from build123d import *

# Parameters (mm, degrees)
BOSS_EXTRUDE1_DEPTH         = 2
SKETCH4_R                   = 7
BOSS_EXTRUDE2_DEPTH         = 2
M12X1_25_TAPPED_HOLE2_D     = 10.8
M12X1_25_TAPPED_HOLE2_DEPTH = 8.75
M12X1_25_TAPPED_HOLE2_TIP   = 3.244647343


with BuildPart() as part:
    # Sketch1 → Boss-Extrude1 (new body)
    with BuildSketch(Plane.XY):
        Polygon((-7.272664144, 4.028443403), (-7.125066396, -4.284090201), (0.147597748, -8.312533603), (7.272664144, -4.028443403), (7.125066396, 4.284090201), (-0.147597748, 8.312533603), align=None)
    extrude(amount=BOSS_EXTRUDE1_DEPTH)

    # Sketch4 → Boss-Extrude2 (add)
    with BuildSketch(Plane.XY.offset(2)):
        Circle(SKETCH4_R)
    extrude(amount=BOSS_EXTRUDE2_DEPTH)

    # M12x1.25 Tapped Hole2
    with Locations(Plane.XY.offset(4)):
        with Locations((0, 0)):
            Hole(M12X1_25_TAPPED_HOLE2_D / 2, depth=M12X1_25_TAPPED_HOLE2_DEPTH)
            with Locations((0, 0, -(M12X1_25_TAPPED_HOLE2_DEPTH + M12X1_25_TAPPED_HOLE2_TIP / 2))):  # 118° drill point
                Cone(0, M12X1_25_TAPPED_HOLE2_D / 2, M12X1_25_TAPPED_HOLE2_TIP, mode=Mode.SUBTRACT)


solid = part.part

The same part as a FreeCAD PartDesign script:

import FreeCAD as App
import Part
import Sketcher

V = App.Vector

doc = App.newDocument("Part")
params = doc.addObject("Spreadsheet::Sheet", "Params")
for row, (alias, value) in enumerate([
    ("pad1_length", "2 mm"),
    ("sketch2_diameter", "14 mm"),
    ("pad2_length", "2 mm"),
    ("sketch3_diameter", "10.8 mm"),
    ("hole_diameter", "10.8 mm"),
    ("hole_depth", "8.75 mm"),
], start=1):
    params.set(f"A{row}", alias)
    params.set(f"B{row}", "=" + value)
    params.setAlias(f"B{row}", alias)

body = doc.addObject("PartDesign::Body", "Body")

sketch1 = doc.addObject("Sketcher::SketchObject", "Sketch")
body.addObject(sketch1)
sketch1.AttachmentSupport = (doc.XY_Plane, [""])
sketch1.MapMode = "FlatFace"
sketch1.addGeometry([
    Part.LineSegment(V(-7.272664, 4.028443, 0), V(-7.125066, -4.28409, 0)),
    Part.LineSegment(V(-7.125066, -4.28409, 0), V(0.147598, -8.312534, 0)),
    Part.LineSegment(V(0.147598, -8.312534, 0), V(7.272664, -4.028443, 0)),
    Part.LineSegment(V(7.272664, -4.028443, 0), V(7.125066, 4.28409, 0)),
    Part.LineSegment(V(7.125066, 4.28409, 0), V(-0.147598, 8.312534, 0)),
    Part.LineSegment(V(-0.147598, 8.312534, 0), V(-7.272664, 4.028443, 0)),
], False)
sketch1.addConstraint([
    Sketcher.Constraint("Coincident", 0, 2, 1, 1),
    Sketcher.Constraint("Coincident", 1, 2, 2, 1),
    Sketcher.Constraint("Coincident", 2, 2, 3, 1),
    Sketcher.Constraint("Coincident", 3, 2, 4, 1),
    Sketcher.Constraint("Coincident", 4, 2, 5, 1),
    Sketcher.Constraint("Coincident", 5, 2, 0, 1),
    Sketcher.Constraint("Symmetric", 0, 2, 3, 2, -1, 1),
    Sketcher.Constraint("Symmetric", 1, 2, 4, 2, -1, 1),
    Sketcher.Constraint("Symmetric", 2, 2, 5, 2, -1, 1),
    Sketcher.Constraint("Equal", 0, 1),
    Sketcher.Constraint("Equal", 1, 2),
    Sketcher.Constraint("DistanceY", 0, 2, -1, 1, 4.28409),
    Sketcher.Constraint("DistanceY", 1, 2, 2, 2, 4.28409),
    Sketcher.Constraint("DistanceX", 0, 2, 2, 2, 14.397731),
    Sketcher.Constraint("DistanceX", 1, 2, 3, 2, 6.977469),
])
pad1 = doc.addObject("PartDesign::Pad", "Pad")
body.addObject(pad1)
pad1.Profile = sketch1
pad1.setExpression("Length", "Params.pad1_length")

sketch2 = doc.addObject("Sketcher::SketchObject", "Sketch001")
body.addObject(sketch2)
sketch2.AttachmentSupport = (doc.XY_Plane, [""])
sketch2.MapMode = "FlatFace"
sketch2.AttachmentOffset = App.Placement(V(0, 0, 2), App.Rotation())
sketch2.addGeometry(Part.Circle(V(0, 0, 0), V(0, 0, 1), 7), False)
sketch2.addConstraint([
    Sketcher.Constraint("Coincident", 0, 3, -1, 1),
    Sketcher.Constraint("Diameter", 0, 14.0),
])
sketch2.setExpression("Constraints[1]", "Params.sketch2_diameter")
pad2 = doc.addObject("PartDesign::Pad", "Pad001")
body.addObject(pad2)
pad2.Profile = sketch2
pad2.setExpression("Length", "Params.pad2_length")

sketch3 = doc.addObject("Sketcher::SketchObject", "Sketch002")
body.addObject(sketch3)
sketch3.AttachmentSupport = (doc.XY_Plane, [""])
sketch3.MapMode = "FlatFace"
sketch3.AttachmentOffset = App.Placement(V(0, 0, 4), App.Rotation())
sketch3.addGeometry(Part.Circle(V(0, 0, 0), V(0, 0, 1), 5.4), False)
sketch3.addConstraint([
    Sketcher.Constraint("Coincident", 0, 3, -1, 1),
    Sketcher.Constraint("Diameter", 0, 10.8),
])
sketch3.setExpression("Constraints[1]", "Params.sketch3_diameter")
doc.recompute()
hole = doc.addObject("PartDesign::Hole", "Hole")
body.addObject(hole)
hole.Profile = sketch3
hole.ThreadType = "None"
hole.setExpression("Diameter", "Params.hole_diameter")
hole.DepthType = "Dimension"
hole.setExpression("Depth", "Params.hole_depth")
hole.DrillPoint = "Angled"
hole.DrillPointAngle = 118

doc.recompute()
